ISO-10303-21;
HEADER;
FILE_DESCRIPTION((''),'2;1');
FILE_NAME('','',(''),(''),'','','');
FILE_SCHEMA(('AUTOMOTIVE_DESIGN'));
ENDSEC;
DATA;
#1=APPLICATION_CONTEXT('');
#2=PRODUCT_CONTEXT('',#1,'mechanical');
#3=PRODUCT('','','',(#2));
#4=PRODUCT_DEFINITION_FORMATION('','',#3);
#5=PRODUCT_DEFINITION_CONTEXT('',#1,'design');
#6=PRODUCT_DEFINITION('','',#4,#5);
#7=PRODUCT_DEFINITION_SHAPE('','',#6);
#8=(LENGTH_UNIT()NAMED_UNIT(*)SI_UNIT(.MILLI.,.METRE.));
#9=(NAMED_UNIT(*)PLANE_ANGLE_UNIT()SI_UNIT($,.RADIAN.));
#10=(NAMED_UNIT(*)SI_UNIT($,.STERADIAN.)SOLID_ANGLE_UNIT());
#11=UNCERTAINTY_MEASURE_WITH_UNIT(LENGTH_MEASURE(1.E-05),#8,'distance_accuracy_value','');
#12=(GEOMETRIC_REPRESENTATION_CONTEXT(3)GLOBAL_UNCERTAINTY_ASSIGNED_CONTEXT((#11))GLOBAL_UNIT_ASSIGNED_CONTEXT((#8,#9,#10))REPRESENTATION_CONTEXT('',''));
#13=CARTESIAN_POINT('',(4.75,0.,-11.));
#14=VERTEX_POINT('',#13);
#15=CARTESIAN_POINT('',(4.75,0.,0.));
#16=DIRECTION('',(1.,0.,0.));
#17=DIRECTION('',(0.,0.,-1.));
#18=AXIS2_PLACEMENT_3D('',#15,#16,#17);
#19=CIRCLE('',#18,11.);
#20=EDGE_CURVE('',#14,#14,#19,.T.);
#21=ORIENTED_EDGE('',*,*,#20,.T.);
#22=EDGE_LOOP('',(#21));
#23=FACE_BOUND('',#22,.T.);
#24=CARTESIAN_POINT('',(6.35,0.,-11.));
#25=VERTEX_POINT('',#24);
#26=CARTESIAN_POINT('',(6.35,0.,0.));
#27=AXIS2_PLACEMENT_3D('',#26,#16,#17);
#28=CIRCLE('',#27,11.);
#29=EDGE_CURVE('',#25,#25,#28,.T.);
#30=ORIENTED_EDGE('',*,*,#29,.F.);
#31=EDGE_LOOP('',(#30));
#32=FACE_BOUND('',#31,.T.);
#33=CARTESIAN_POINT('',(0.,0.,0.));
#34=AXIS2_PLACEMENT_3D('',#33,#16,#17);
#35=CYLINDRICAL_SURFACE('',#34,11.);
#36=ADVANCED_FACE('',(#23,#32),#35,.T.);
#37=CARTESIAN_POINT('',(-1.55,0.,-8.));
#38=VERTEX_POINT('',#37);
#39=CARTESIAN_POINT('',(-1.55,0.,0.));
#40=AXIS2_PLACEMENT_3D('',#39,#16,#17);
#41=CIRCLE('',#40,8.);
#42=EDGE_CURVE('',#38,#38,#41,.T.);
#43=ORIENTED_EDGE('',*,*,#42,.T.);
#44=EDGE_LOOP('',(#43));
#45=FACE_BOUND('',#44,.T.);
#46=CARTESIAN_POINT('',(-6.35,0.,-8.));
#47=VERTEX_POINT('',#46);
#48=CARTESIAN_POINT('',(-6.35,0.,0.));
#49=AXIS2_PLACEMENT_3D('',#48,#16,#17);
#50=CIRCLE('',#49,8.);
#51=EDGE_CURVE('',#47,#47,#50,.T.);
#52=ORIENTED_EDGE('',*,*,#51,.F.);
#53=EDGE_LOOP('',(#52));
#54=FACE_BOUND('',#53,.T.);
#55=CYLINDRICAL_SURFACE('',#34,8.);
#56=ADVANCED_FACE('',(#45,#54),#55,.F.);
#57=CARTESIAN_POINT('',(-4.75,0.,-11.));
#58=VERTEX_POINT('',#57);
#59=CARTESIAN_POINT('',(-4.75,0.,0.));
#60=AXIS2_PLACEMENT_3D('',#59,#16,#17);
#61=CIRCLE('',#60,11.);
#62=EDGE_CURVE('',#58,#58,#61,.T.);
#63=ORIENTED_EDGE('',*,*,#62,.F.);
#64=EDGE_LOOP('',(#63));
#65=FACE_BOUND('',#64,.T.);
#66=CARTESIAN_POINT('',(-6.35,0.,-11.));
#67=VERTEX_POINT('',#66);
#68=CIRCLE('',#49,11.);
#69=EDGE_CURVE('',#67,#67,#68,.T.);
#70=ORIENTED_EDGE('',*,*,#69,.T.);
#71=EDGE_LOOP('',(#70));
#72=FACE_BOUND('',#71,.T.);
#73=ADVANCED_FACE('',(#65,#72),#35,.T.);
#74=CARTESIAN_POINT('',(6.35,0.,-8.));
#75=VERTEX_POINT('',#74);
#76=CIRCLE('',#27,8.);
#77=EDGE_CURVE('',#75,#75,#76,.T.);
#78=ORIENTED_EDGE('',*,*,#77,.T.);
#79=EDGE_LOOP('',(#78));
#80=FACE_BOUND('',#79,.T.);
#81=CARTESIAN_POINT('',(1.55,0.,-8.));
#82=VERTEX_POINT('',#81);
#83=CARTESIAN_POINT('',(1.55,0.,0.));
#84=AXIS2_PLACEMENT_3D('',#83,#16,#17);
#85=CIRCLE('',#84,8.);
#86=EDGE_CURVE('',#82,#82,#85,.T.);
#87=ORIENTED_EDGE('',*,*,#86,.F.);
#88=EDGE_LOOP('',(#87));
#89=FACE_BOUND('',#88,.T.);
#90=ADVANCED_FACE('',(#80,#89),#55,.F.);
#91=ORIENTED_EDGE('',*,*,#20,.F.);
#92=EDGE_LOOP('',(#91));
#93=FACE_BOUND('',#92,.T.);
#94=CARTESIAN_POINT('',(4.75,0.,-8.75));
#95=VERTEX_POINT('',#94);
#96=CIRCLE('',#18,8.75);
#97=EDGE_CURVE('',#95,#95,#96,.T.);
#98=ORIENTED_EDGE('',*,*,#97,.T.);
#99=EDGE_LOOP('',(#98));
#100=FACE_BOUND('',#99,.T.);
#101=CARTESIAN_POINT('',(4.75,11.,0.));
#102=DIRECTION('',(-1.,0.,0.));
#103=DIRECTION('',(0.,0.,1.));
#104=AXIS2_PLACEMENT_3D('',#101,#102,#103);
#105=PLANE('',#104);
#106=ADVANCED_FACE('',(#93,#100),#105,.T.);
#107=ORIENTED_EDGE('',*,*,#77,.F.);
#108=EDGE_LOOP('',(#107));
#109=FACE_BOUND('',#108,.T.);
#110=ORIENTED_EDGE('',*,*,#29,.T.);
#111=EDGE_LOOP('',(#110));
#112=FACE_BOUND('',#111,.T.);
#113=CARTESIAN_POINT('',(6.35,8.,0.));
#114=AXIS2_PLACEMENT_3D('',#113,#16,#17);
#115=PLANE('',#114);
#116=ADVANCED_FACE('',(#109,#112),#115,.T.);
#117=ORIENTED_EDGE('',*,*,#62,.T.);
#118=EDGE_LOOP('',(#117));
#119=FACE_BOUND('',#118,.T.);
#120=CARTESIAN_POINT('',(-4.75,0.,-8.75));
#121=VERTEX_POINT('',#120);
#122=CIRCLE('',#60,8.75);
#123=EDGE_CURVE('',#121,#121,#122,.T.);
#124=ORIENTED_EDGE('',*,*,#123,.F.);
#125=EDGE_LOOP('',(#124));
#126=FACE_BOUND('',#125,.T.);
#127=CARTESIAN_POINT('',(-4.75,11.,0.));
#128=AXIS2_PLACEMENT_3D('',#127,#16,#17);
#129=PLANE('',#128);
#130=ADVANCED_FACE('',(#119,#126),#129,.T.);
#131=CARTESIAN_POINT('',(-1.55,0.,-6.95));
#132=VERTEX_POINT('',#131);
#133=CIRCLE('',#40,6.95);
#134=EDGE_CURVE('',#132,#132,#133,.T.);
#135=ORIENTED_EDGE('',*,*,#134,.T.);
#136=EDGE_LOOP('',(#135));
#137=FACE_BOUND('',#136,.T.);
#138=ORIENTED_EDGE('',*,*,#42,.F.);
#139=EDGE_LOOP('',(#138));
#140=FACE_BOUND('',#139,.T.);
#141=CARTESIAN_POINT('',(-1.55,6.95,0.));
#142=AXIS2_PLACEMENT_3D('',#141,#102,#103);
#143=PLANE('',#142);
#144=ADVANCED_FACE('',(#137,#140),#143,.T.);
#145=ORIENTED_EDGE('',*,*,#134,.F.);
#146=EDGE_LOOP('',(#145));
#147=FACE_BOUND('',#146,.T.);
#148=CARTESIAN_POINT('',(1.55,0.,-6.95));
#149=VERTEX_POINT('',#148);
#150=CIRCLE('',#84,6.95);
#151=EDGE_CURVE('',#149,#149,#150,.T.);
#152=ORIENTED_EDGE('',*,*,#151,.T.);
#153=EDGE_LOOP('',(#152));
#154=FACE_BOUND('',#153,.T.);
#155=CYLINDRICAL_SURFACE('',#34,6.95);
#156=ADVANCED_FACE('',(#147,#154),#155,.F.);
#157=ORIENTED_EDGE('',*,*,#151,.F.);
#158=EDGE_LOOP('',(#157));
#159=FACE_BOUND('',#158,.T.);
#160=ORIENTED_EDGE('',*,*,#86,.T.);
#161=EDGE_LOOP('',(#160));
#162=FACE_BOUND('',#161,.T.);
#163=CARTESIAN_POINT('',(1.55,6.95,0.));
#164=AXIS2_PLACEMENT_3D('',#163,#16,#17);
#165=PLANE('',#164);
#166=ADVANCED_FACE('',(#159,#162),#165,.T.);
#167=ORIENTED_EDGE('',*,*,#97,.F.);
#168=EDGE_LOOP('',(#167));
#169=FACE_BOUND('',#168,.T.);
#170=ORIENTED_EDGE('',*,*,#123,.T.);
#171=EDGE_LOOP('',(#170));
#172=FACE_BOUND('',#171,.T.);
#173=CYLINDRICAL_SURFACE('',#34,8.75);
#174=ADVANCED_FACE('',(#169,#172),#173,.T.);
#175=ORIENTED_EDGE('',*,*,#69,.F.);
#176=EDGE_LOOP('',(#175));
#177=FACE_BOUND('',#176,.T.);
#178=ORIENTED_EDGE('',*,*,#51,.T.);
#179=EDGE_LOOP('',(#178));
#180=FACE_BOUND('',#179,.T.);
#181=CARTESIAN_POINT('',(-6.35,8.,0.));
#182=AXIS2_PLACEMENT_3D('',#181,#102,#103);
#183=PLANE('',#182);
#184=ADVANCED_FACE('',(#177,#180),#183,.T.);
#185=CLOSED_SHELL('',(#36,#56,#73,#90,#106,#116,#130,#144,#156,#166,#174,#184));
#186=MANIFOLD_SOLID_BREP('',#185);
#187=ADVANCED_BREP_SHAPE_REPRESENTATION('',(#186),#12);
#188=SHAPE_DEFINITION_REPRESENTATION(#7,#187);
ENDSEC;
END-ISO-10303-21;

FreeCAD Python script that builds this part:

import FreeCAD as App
import Part
import Sketcher
Q = App.Units.Quantity

doc = App.newDocument("Part")
body = doc.addObject("PartDesign::Body", "Body")

sketch1 = body.newObject("Sketcher::SketchObject", "Sketch")
sketch1.AttachmentSupport = (doc.getObject("XY_Plane"), [""])
sketch1.MapMode = "FlatFace"
sketch1.addGeometry(Part.LineSegment(App.Vector(-1.6, 7, 0), App.Vector(1.6, 7, 0)), False)
sketch1.addGeometry(Part.LineSegment(App.Vector(1.6, 7, 0), App.Vector(1.6, 8, 0)), False)
sketch1.addGeometry(Part.LineSegment(App.Vector(1.6, 8, 0), App.Vector(6.3, 8, 0)), False)
sketch1.addGeometry(Part.LineSegment(App.Vector(6.3, 8, 0), App.Vector(6.3, 11, 0)), False)
sketch1.addGeometry(Part.LineSegment(App.Vector(6.3, 11, 0), App.Vector(4.8, 11, 0)), False)
sketch1.addGeometry(Part.LineSegment(App.Vector(4.8, 11, 0), App.Vector(4.8, 8.8, 0)), False)
sketch1.addGeometry(Part.LineSegment(App.Vector(4.8, 8.8, 0), App.Vector(-4.8, 8.8, 0)), False)
sketch1.addGeometry(Part.LineSegment(App.Vector(-4.8, 8.8, 0), App.Vector(-4.8, 11, 0)), False)
sketch1.addGeometry(Part.LineSegment(App.Vector(-4.8, 11, 0), App.Vector(-6.3, 11, 0)), False)
sketch1.addGeometry(Part.LineSegment(App.Vector(-6.3, 11, 0), App.Vector(-6.3, 8, 0)), False)
sketch1.addGeometry(Part.LineSegment(App.Vector(-6.3, 8, 0), App.Vector(-1.6, 8, 0)), False)
sketch1.addGeometry(Part.LineSegment(App.Vector(-1.6, 8, 0), App.Vector(-1.6, 7, 0)), False)
sketch1.addConstraint(Sketcher.Constraint("Coincident", 0, 2, 1, 1))
sketch1.addConstraint(Sketcher.Constraint("Coincident", 1, 2, 2, 1))
sketch1.addConstraint(Sketcher.Constraint("Coincident", 2, 2, 3, 1))
sketch1.addConstraint(Sketcher.Constraint("Coincident", 3, 2, 4, 1))
sketch1.addConstraint(Sketcher.Constraint("Coincident", 4, 2, 5, 1))
sketch1.addConstraint(Sketcher.Constraint("Coincident", 5, 2, 6, 1))
sketch1.addConstraint(Sketcher.Constraint("Coincident", 6, 2, 7, 1))
sketch1.addConstraint(Sketcher.Constraint("Coincident", 7, 2, 8, 1))
sketch1.addConstraint(Sketcher.Constraint("Coincident", 8, 2, 9, 1))
sketch1.addConstraint(Sketcher.Constraint("Coincident", 9, 2, 10, 1))
sketch1.addConstraint(Sketcher.Constraint("Coincident", 10, 2, 11, 1))
sketch1.addConstraint(Sketcher.Constraint("Coincident", 11, 2, 0, 1))
sketch1.addConstraint(Sketcher.Constraint("Horizontal", 0))
sketch1.addConstraint(Sketcher.Constraint("Vertical", 1))
sketch1.addConstraint(Sketcher.Constraint("Horizontal", 2))
sketch1.addConstraint(Sketcher.Constraint("Vertical", 3))
sketch1.addConstraint(Sketcher.Constraint("Horizontal", 4))
sketch1.addConstraint(Sketcher.Constraint("Vertical", 5))
sketch1.addConstraint(Sketcher.Constraint("Horizontal", 6))
sketch1.addConstraint(Sketcher.Constraint("Vertical", 7))
sketch1.addConstraint(Sketcher.Constraint("Horizontal", 8))
sketch1.addConstraint(Sketcher.Constraint("Vertical", 9))
sketch1.addConstraint(Sketcher.Constraint("Horizontal", 10))
sketch1.addConstraint(Sketcher.Constraint("Vertical", 11))
sketch1.addConstraint(Sketcher.Constraint("Symmetric", 4, 2, 7, 2, -2))
sketch1.addConstraint(Sketcher.Constraint("Symmetric", 2, 2, 9, 2, -2))
sketch1.addConstraint(Sketcher.Constraint("Equal", 2, 10))
sketch1.addConstraint(Sketcher.Constraint("DistanceY", 3, 1, 3, 2, Q("3 mm")))
sketch1.addConstraint(Sketcher.Constraint("DistanceX", 0, 1, 0, 2, Q("3.1 mm")))
sketch1.addConstraint(Sketcher.Constraint("DistanceX", 2, 1, 2, 2, Q("4.8 mm")))
sketch1.addConstraint(Sketcher.Constraint("DistanceX", 4, 2, 4, 1, Q("1.6 mm")))
sketch1.addConstraint(Sketcher.Constraint("DistanceY", -1, 1, 1, 2, Q("8 mm")))
sketch1.addConstraint(Sketcher.Constraint("DistanceY", 1, 1, 1, 2, Q("1.05 mm")))
sketch1.addConstraint(Sketcher.Constraint("DistanceY", 5, 2, 5, 1, Q("2.25 mm")))
revolution = body.newObject("PartDesign::Revolution", "Revolution")
revolution.Profile = sketch1
revolution.ReferenceAxis = (sketch1, ["H_Axis"])
revolution.Angle = 360

doc.recompute()
